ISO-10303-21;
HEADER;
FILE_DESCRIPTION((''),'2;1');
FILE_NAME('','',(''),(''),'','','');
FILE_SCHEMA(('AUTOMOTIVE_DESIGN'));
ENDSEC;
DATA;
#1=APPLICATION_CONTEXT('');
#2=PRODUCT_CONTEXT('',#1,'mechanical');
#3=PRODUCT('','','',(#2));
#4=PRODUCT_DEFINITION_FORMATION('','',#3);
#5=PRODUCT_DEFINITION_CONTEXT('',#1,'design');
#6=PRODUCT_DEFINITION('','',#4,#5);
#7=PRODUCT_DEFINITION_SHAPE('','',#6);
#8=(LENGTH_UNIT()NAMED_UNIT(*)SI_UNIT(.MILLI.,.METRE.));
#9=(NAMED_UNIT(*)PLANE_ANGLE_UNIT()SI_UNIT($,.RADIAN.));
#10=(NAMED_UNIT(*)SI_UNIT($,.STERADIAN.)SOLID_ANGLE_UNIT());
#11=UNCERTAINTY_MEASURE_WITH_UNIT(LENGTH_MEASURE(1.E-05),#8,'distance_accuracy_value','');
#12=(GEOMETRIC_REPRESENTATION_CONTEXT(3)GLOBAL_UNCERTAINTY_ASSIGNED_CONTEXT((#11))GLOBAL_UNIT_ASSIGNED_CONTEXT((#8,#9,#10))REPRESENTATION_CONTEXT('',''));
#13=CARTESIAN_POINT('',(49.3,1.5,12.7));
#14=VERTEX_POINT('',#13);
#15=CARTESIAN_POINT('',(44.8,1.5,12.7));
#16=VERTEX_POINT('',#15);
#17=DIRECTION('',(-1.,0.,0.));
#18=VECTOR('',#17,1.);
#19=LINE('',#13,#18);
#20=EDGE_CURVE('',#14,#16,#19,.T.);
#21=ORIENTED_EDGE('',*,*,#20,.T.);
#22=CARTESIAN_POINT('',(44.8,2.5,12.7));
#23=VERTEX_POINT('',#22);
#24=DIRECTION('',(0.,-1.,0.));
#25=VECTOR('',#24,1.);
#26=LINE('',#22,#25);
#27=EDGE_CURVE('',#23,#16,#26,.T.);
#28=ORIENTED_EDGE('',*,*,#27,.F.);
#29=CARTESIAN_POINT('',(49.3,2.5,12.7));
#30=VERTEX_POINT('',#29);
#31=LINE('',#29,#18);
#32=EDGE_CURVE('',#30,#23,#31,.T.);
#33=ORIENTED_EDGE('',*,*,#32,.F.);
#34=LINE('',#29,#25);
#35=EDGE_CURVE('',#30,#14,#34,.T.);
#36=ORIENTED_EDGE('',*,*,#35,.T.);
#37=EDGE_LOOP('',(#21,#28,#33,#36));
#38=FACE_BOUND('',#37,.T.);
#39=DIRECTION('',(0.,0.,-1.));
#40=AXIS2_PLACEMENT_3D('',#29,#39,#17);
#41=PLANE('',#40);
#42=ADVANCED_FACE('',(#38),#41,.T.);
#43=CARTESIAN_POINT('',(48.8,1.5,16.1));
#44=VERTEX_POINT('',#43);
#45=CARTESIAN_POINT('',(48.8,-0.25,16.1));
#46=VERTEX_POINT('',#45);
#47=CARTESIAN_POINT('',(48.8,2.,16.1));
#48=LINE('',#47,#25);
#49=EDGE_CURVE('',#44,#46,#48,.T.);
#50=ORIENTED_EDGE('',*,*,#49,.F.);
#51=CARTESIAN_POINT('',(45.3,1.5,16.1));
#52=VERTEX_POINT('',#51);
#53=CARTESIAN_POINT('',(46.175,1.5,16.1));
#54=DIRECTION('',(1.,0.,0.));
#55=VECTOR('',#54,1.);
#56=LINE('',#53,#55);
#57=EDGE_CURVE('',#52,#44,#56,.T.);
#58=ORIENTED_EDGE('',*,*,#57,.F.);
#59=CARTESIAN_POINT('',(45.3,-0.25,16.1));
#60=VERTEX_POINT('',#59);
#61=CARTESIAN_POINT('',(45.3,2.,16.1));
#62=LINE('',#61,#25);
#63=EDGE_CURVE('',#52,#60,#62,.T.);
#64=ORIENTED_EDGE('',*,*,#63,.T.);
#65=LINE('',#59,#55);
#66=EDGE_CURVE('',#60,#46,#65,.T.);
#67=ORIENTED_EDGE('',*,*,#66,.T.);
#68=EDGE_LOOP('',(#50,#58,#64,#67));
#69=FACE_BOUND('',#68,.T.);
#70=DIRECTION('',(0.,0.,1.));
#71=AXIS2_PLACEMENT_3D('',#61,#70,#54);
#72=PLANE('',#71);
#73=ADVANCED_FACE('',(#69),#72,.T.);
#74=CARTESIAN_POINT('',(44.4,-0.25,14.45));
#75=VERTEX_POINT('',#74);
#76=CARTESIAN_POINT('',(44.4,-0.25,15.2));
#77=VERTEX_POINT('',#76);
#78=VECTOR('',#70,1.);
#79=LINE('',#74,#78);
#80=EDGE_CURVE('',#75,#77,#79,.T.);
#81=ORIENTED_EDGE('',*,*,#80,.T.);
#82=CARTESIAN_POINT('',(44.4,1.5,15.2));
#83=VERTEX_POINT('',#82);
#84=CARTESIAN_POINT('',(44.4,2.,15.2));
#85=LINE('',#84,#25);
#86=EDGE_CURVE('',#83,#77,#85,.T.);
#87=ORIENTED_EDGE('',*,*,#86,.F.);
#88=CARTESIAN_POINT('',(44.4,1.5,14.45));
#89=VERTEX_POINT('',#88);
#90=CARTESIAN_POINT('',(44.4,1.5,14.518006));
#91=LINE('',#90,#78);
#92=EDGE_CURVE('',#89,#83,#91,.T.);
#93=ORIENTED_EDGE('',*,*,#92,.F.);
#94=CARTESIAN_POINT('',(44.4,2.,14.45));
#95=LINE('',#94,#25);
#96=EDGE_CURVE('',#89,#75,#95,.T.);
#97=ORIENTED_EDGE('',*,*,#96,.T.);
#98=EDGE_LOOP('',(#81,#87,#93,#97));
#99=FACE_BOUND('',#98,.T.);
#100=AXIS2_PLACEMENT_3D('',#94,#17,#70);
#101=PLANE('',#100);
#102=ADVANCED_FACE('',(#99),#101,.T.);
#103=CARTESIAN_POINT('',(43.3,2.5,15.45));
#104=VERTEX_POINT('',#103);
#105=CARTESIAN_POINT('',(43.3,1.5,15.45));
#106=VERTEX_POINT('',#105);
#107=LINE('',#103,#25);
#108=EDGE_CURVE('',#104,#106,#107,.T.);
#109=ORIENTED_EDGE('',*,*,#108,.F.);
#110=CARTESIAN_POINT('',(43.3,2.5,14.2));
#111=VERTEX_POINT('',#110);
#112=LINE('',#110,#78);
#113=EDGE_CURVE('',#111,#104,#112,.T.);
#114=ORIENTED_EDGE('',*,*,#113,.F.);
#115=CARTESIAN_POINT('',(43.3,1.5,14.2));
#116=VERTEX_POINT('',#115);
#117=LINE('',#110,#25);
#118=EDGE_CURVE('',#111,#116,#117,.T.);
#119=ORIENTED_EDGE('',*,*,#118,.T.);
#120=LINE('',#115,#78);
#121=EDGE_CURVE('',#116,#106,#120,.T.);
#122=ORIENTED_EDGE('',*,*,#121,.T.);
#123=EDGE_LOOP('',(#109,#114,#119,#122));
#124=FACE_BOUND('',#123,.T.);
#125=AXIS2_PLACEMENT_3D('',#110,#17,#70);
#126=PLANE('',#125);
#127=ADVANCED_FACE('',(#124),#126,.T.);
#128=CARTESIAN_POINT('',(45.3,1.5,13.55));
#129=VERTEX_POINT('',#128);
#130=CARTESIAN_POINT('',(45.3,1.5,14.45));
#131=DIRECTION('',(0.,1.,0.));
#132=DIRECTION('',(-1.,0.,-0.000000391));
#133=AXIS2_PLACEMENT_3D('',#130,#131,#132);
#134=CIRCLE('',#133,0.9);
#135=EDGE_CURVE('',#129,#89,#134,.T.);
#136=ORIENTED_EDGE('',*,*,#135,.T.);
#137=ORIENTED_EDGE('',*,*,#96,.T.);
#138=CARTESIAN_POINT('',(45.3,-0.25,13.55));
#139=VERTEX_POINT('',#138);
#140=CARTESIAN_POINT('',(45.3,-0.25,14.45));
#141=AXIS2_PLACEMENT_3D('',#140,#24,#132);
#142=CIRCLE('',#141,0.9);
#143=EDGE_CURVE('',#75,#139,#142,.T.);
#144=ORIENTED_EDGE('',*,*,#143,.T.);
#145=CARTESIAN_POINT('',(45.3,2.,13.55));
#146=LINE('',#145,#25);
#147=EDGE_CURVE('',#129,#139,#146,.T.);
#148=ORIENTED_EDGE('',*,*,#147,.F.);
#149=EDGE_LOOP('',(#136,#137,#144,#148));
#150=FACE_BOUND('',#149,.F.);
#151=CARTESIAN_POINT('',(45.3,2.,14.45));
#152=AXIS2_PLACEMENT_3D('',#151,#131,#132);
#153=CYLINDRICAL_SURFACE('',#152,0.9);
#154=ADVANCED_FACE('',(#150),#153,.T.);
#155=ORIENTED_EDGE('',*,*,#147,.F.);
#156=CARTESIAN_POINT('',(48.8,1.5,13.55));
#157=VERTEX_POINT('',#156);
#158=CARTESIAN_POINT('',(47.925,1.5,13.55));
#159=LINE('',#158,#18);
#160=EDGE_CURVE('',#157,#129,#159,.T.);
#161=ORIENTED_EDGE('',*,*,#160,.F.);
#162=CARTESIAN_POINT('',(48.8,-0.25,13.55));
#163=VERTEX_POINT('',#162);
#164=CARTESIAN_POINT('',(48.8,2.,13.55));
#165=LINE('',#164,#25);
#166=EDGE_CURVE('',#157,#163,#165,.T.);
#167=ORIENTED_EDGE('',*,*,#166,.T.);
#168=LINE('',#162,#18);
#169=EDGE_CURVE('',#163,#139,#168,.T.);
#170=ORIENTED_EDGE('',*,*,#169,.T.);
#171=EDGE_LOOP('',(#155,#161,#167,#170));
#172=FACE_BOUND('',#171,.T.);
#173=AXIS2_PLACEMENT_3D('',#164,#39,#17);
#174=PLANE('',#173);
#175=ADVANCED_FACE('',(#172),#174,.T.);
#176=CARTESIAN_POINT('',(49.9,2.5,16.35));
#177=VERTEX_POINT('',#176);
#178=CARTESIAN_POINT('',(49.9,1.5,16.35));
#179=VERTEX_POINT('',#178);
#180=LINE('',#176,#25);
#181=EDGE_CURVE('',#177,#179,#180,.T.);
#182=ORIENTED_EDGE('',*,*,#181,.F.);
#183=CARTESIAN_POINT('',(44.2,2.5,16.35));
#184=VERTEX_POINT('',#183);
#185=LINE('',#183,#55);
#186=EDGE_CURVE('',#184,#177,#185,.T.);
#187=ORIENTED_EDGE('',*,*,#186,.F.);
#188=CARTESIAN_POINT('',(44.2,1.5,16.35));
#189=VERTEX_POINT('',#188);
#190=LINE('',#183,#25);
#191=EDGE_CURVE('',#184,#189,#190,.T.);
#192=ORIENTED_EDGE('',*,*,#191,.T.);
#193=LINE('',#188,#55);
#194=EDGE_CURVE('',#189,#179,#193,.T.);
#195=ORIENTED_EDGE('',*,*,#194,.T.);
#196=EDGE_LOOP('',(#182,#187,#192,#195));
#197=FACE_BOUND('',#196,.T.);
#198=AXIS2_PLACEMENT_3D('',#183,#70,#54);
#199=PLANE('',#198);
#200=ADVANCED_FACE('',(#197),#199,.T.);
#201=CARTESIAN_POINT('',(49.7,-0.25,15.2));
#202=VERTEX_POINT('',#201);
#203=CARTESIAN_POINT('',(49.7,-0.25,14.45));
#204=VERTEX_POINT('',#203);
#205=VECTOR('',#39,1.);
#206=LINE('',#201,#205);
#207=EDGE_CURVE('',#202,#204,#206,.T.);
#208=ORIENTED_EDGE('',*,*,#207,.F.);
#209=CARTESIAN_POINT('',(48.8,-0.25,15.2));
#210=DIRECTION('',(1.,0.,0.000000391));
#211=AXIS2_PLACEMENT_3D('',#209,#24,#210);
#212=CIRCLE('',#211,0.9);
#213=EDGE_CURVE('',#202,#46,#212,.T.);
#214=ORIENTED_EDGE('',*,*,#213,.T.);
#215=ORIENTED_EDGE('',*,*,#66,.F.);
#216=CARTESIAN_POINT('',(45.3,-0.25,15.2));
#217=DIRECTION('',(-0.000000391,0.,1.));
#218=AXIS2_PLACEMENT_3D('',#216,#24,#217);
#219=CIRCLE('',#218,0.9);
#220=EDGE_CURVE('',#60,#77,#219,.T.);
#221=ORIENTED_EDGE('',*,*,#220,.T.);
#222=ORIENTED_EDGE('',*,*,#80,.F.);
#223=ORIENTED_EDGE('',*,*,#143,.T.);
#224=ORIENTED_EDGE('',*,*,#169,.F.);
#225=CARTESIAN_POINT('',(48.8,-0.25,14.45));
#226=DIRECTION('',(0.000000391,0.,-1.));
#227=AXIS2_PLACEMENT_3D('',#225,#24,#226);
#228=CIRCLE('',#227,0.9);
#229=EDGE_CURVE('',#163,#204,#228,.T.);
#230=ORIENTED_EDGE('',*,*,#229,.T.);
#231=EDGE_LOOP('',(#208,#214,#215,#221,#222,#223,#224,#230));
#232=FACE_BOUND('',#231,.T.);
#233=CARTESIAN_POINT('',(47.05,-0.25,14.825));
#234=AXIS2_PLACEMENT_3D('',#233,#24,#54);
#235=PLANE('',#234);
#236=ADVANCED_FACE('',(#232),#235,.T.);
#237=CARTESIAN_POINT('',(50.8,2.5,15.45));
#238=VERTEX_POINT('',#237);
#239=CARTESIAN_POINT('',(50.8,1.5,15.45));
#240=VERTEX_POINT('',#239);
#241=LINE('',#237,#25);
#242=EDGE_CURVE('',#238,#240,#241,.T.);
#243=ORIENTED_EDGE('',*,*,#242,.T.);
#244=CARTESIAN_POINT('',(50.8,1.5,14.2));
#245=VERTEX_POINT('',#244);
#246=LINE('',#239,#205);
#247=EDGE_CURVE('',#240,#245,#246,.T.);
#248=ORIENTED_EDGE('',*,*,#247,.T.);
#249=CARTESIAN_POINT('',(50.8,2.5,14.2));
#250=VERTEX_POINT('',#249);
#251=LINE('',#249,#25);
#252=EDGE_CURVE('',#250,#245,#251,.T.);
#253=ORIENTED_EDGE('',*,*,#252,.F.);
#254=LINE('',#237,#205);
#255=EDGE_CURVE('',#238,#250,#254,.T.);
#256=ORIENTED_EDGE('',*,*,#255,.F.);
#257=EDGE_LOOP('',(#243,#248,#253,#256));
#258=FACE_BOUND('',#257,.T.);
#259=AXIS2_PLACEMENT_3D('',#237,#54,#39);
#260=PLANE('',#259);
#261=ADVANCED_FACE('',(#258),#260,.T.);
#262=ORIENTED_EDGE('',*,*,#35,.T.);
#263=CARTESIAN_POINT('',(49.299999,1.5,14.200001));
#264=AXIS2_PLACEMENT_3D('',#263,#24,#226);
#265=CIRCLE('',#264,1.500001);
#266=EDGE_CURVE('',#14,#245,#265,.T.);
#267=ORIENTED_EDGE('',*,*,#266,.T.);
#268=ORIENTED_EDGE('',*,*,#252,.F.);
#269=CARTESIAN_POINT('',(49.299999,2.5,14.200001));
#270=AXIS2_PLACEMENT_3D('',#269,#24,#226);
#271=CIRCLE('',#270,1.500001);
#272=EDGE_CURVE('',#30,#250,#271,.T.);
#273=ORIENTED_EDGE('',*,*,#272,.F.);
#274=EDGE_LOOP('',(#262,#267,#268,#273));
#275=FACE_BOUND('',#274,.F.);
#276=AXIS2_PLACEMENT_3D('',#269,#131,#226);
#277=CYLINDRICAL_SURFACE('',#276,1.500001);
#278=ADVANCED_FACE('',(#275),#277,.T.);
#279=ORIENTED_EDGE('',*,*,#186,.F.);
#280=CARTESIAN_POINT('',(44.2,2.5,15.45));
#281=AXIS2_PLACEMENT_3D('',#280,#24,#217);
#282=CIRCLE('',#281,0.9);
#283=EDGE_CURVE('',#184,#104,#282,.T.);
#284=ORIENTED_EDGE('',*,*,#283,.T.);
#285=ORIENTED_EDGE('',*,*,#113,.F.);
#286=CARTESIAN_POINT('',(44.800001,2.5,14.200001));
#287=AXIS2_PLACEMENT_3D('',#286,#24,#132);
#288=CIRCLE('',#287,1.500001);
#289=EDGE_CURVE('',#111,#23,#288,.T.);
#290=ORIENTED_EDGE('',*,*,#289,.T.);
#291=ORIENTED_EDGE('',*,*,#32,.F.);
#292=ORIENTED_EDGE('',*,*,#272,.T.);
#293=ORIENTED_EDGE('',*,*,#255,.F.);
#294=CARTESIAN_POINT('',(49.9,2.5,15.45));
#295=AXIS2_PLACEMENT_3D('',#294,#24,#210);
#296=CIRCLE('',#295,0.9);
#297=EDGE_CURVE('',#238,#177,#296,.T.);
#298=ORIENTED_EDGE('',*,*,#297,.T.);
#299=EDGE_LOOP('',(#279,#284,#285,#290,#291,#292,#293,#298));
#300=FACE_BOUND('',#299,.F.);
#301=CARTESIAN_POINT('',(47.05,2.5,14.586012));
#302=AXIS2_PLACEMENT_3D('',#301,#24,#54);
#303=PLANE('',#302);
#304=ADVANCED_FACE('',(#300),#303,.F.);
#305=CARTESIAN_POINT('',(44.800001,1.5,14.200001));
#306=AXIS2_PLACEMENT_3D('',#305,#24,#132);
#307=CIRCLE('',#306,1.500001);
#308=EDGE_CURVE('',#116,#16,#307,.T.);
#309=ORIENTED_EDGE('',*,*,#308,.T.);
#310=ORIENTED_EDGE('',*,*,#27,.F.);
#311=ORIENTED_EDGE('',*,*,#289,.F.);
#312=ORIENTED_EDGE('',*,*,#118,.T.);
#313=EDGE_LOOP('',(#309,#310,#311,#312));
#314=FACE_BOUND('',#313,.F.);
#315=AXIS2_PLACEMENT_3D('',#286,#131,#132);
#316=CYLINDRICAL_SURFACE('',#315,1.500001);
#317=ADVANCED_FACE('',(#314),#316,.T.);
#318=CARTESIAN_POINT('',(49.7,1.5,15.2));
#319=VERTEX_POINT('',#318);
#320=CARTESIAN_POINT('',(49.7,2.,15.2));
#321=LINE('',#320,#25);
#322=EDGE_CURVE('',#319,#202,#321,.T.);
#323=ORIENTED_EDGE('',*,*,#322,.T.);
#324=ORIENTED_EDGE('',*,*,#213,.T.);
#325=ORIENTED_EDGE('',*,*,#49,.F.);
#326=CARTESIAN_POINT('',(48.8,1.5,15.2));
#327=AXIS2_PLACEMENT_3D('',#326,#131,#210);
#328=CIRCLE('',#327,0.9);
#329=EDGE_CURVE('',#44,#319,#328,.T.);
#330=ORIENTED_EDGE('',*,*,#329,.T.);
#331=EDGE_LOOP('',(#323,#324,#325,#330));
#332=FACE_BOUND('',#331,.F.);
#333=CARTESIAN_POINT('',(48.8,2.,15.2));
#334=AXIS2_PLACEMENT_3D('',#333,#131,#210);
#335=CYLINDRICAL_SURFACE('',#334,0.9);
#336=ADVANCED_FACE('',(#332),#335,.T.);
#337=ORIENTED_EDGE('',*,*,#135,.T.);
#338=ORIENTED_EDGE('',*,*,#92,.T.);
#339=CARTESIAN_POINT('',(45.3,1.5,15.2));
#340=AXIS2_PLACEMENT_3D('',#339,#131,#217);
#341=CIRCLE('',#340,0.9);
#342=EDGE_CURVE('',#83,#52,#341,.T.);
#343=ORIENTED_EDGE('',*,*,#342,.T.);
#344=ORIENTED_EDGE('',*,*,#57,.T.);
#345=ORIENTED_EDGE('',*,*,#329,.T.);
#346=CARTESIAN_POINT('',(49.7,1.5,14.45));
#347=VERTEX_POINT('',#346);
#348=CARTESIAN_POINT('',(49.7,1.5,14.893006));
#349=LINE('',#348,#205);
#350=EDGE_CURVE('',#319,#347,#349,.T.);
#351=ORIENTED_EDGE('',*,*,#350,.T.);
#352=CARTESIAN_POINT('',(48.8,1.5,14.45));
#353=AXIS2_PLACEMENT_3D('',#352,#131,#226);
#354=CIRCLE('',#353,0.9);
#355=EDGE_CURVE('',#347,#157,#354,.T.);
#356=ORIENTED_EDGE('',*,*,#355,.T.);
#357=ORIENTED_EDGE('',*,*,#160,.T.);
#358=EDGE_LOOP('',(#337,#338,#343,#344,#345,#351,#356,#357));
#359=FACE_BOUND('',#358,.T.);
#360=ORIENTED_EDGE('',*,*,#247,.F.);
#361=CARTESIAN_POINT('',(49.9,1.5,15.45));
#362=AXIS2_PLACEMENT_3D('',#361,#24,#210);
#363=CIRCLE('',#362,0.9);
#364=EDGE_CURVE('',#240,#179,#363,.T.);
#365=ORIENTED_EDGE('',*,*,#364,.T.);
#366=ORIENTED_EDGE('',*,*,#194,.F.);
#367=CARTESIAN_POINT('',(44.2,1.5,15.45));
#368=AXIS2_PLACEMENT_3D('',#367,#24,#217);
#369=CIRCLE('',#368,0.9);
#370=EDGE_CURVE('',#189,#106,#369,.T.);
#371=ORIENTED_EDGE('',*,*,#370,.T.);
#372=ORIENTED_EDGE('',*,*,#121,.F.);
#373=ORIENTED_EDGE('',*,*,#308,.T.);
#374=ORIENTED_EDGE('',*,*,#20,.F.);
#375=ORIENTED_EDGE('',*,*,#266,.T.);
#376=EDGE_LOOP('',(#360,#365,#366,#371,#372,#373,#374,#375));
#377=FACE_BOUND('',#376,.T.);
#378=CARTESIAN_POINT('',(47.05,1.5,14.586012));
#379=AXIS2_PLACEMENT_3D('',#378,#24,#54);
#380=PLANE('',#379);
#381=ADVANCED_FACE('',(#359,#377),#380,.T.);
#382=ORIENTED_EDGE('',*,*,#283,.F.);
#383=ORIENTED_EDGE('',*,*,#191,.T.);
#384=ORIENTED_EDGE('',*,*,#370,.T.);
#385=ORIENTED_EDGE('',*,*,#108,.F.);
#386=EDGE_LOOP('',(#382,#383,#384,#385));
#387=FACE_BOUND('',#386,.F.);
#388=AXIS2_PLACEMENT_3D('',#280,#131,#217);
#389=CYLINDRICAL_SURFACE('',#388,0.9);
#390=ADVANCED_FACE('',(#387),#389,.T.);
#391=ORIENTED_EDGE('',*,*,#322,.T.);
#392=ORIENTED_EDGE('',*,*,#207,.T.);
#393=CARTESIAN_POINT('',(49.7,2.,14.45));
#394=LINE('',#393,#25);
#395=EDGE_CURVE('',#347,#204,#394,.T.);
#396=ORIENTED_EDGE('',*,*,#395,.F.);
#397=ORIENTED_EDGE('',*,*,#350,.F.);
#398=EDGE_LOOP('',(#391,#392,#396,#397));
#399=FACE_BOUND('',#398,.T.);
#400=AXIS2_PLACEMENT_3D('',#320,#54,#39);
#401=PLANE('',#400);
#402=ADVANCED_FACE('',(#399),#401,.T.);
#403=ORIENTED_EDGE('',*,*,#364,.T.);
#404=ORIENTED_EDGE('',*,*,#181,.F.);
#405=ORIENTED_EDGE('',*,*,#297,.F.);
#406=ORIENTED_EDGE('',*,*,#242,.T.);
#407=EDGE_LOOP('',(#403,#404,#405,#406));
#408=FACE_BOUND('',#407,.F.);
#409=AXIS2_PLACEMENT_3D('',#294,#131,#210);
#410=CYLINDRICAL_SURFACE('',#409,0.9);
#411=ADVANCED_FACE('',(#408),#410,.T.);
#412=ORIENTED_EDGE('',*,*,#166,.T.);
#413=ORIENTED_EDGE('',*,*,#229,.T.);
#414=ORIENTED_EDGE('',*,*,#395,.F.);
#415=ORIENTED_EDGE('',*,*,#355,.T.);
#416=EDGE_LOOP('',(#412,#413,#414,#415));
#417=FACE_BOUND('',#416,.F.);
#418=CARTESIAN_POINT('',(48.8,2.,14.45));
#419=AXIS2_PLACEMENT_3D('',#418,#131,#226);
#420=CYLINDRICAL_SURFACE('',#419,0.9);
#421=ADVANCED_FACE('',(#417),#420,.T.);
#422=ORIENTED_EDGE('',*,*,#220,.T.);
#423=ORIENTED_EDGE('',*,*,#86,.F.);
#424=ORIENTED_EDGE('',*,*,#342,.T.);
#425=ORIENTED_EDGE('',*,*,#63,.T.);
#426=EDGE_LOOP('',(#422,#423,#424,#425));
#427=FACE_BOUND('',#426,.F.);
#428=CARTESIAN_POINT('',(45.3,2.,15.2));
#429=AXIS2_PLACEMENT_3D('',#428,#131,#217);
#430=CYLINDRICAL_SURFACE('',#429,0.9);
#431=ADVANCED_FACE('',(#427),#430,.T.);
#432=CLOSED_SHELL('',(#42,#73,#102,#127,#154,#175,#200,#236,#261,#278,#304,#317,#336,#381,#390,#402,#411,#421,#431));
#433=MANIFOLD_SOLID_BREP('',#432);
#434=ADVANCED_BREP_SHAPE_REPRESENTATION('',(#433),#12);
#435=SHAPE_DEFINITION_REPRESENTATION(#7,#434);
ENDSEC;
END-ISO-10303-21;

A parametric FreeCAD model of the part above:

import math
import FreeCAD as App
import Part
import Sketcher
from FreeCAD import Vector
Q = App.Units.Quantity

doc = App.newDocument("Part")
body = doc.addObject("PartDesign::Body", "Body")

sketch1 = body.newObject("Sketcher::SketchObject", "Sketch")
sketch1.AttachmentSupport = (doc.getObject("XZ_Plane"), [""])
sketch1.MapMode = "FlatFace"
sketch1.addGeometry([
    Part.ArcOfCircle(Part.Circle(Vector(11.7, 15.4, 0), Vector(0, 0, 1), 0.9), math.radians(90), math.radians(180)),
    Part.LineSegment(Vector(10.8, 15.4, 0), Vector(10.8, 14.2, 0)),
    Part.ArcOfCircle(Part.Circle(Vector(12.3, 14.2, 0), Vector(0, 0, 1), 1.5), math.radians(-180), math.radians(-90)),
    Part.LineSegment(Vector(12.3, 12.7, 0), Vector(16.8, 12.7, 0)),
    Part.ArcOfCircle(Part.Circle(Vector(16.8, 14.2, 0), Vector(0, 0, 1), 1.5), math.radians(-90), math.radians(0)),
    Part.LineSegment(Vector(18.3, 14.2, 0), Vector(18.3, 15.4, 0)),
    Part.ArcOfCircle(Part.Circle(Vector(17.4, 15.4, 0), Vector(0, 0, 1), 0.9), math.radians(0), math.radians(90)),
    Part.LineSegment(Vector(17.4, 16.4, 0), Vector(11.7, 16.4, 0)),
], False)
sketch1.addConstraint([
    Sketcher.Constraint("Tangent", 0, 2, 1, 1),
    Sketcher.Constraint("Tangent", 1, 2, 2, 1),
    Sketcher.Constraint("Tangent", 2, 2, 3, 1),
    Sketcher.Constraint("Tangent", 3, 2, 4, 1),
    Sketcher.Constraint("Tangent", 4, 2, 5, 1),
    Sketcher.Constraint("Tangent", 5, 2, 6, 1),
    Sketcher.Constraint("Tangent", 6, 2, 7, 1),
    Sketcher.Constraint("Tangent", 7, 2, 0, 1),
    Sketcher.Constraint("Vertical", 1),
    Sketcher.Constraint("Horizontal", 3),
    Sketcher.Constraint("Vertical", 5),
    Sketcher.Constraint("Horizontal", 7),
    Sketcher.Constraint("Equal", 2, 4),
    Sketcher.Constraint("Equal", 0, 6),
    Sketcher.Constraint("Radius", 0, Q("0.9 mm")),
    Sketcher.Constraint("Radius", 2, Q("1.500001 mm")),
    Sketcher.Constraint("DistanceX", 3, 1, 3, 2, Q("4.5 mm")),
    Sketcher.Constraint("DistanceY", 1, 2, 1, 1, Q("1.25 mm")),
    Sketcher.Constraint("DistanceX", -1, 1, 0, 3, Q("11.7 mm")),
    Sketcher.Constraint("DistanceY", -1, 1, 2, 3, Q("14.200001 mm")),
])
pad1 = body.newObject("PartDesign::Pad", "Pad")
pad1.Profile = sketch1
pad1.Length = 1
body2 = doc.addObject("PartDesign::Body", "Body001")
doc.recompute()

body.Placement = App.Placement(Vector(0, 2.5, 0), App.Rotation(Vector(0, 0, 1), 0))
boolean = body2.newObject("PartDesign::Boolean", "Boolean")
boolean.Type = "Fuse"
boolean.addObjects([body])
body3 = doc.addObject("PartDesign::Body", "Body002")

sketch2 = body3.newObject("Sketcher::SketchObject", "Sketch001")
sketch2.AttachmentSupport = (doc.getObject("XZ_Plane002"), [""])
sketch2.MapMode = "FlatFace"
sketch2.addGeometry([
    Part.ArcOfCircle(Part.Circle(Vector(12.8, 15.2, 0), Vector(0, 0, 1), 0.9), math.radians(90), math.radians(180)),
    Part.LineSegment(Vector(11.9, 15.2, 0), Vector(11.9, 14.4, 0)),
    Part.ArcOfCircle(Part.Circle(Vector(12.8, 14.5, 0), Vector(0, 0, 1), 0.9), math.radians(-180), math.radians(-90)),
    Part.LineSegment(Vector(12.8, 13.6, 0), Vector(16.3, 13.6, 0)),
    Part.ArcOfCircle(Part.Circle(Vector(16.3, 14.5, 0), Vector(0, 0, 1), 0.9), math.radians(-90), math.radians(0)),
    Part.LineSegment(Vector(17.2, 14.4, 0), Vector(17.2, 15.2, 0)),
    Part.ArcOfCircle(Part.Circle(Vector(16.3, 15.2, 0), Vector(0, 0, 1), 0.9), math.radians(0), math.radians(90)),
    Part.LineSegment(Vector(16.3, 16.1, 0), Vector(12.8, 16.1, 0)),
], False)
sketch2.addConstraint([
    Sketcher.Constraint("Tangent", 0, 2, 1, 1),
    Sketcher.Constraint("Tangent", 1, 2, 2, 1),
    Sketcher.Constraint("Tangent", 2, 2, 3, 1),
    Sketcher.Constraint("Tangent", 3, 2, 4, 1),
    Sketcher.Constraint("Tangent", 4, 2, 5, 1),
    Sketcher.Constraint("Tangent", 5, 2, 6, 1),
    Sketcher.Constraint("Tangent", 6, 2, 7, 1),
    Sketcher.Constraint("Tangent", 7, 2, 0, 1),
    Sketcher.Constraint("Vertical", 1),
    Sketcher.Constraint("Horizontal", 3),
    Sketcher.Constraint("Vertical", 5),
    Sketcher.Constraint("Horizontal", 7),
    Sketcher.Constraint("Equal", 0, 2),
    Sketcher.Constraint("Equal", 2, 4),
    Sketcher.Constraint("Equal", 4, 6),
    Sketcher.Constraint("Radius", 0, Q("0.9 mm")),
    Sketcher.Constraint("DistanceX", 3, 1, 3, 2, Q("3.5 mm")),
    Sketcher.Constraint("DistanceY", 1, 2, 1, 1, Q("0.75 mm")),
    Sketcher.Constraint("DistanceX", -1, 1, 0, 3, Q("12.8 mm")),
    Sketcher.Constraint("DistanceY", -1, 1, 0, 3, Q("15.2 mm")),
])
pad2 = body3.newObject("PartDesign::Pad", "Pad001")
pad2.Profile = sketch2
pad2.Length = 2.25
body4 = doc.addObject("PartDesign::Body", "Body003")
doc.recompute()

body3.Placement = App.Placement(Vector(0, 2, 0), App.Rotation(Vector(0, 0, 1), 0))
boolean2 = body4.newObject("PartDesign::Boolean", "Boolean001")
boolean2.Type = "Fuse"
boolean2.addObjects([body3])
doc.recompute()

boolean3 = body4.newObject("PartDesign::Boolean", "Boolean002")
boolean3.Type = "Fuse"
boolean3.addObjects([body2])
body5 = doc.addObject("PartDesign::Body", "Body004")
doc.recompute()

body4.Placement = App.Placement(Vector(32.5, 0, 0), App.Rotation(Vector(0, 0, 1), 0))
boolean4 = body5.newObject("PartDesign::Boolean", "Boolean003")
boolean4.Type = "Fuse"
boolean4.addObjects([body4])

doc.recompute()
